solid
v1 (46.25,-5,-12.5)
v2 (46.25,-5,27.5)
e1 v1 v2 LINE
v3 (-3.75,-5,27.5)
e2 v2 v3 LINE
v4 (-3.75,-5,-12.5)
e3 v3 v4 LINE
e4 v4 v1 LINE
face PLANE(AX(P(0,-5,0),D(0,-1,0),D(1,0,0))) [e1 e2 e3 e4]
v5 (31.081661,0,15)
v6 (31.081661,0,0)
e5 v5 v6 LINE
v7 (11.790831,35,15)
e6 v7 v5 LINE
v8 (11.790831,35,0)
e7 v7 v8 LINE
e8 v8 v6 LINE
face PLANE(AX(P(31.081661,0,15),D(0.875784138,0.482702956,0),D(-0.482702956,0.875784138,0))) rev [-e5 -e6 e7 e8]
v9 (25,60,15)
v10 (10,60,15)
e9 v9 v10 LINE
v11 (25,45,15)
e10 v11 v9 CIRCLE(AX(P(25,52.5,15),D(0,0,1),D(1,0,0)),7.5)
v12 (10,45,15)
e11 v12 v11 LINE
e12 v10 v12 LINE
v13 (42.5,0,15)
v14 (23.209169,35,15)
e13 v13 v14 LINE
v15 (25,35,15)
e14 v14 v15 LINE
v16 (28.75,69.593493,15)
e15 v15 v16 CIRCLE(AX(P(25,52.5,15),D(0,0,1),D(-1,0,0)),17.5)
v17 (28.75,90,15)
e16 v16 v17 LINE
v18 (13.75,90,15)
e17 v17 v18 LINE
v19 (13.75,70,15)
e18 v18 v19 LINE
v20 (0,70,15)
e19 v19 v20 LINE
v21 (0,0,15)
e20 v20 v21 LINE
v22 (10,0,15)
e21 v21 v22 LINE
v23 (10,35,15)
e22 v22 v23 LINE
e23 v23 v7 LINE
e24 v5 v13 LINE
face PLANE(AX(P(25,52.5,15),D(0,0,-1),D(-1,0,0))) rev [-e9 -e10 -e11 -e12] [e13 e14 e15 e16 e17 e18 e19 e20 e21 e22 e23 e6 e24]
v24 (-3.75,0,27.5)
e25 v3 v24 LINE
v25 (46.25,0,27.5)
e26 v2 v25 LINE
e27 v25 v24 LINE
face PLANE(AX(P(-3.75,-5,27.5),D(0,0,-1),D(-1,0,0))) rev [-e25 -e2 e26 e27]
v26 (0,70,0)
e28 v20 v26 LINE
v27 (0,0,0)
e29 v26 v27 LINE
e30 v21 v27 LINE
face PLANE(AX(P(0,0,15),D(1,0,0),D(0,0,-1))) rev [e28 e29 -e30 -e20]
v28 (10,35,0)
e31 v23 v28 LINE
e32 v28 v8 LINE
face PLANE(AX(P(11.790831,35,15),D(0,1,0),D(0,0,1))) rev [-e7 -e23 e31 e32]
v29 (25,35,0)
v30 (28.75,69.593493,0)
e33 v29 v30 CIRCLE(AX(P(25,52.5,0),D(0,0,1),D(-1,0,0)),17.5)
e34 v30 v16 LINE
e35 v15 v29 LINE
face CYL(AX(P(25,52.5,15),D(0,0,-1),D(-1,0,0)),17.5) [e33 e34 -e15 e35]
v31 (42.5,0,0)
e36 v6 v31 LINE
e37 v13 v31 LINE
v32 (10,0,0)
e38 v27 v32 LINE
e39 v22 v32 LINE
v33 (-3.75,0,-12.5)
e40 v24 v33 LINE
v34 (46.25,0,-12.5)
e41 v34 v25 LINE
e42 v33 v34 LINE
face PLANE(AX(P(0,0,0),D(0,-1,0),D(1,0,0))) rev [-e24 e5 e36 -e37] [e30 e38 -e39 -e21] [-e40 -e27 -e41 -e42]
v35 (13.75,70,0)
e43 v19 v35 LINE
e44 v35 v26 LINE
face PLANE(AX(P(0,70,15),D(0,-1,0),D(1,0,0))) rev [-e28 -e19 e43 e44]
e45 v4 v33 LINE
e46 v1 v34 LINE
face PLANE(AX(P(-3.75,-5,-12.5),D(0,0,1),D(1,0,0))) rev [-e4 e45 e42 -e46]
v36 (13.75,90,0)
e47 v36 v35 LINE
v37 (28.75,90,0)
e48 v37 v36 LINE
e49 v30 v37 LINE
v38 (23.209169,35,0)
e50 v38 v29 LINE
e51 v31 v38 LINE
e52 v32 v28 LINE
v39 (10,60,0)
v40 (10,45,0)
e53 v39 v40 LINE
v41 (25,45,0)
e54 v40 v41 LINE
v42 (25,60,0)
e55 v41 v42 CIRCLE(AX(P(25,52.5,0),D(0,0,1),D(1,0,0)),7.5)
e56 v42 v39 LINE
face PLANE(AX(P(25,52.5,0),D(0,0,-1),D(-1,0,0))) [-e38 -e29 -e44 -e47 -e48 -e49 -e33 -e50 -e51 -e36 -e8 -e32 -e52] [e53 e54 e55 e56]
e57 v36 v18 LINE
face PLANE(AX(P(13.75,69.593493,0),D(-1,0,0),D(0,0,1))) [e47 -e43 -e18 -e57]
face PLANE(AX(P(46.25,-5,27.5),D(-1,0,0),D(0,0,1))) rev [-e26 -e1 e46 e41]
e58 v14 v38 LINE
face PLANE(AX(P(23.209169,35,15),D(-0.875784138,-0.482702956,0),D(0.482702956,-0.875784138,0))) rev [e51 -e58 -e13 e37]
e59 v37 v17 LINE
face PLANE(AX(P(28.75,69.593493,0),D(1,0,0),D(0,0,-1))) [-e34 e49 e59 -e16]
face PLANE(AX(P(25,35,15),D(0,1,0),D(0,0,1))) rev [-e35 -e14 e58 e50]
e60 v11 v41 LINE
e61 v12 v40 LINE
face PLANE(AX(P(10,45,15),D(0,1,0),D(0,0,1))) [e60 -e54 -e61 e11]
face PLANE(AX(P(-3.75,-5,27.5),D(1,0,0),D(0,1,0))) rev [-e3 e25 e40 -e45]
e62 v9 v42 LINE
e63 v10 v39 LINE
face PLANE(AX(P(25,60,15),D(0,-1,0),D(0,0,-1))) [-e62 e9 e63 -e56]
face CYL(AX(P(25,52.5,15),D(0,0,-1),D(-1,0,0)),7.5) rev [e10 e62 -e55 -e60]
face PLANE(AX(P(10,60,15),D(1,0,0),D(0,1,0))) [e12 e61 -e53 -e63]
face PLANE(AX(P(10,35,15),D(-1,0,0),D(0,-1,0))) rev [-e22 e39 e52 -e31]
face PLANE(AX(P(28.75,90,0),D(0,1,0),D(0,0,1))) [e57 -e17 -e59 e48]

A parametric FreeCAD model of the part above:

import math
import FreeCAD as App
import Part
import Sketcher

V = App.Vector

doc = App.newDocument("Part")
params = doc.addObject("Spreadsheet::Sheet", "Params")
for row, (alias, value) in enumerate([
    ("sketch1_radius", "17.5 mm"),
    ("sketch1_radius2", "7.5 mm"),
    ("sketch1_width", "10 mm"),
    ("sketch1_height", "70 mm"),
    ("pad1_length", "15 mm"),
    ("sketch2_width", "50 mm"),
    ("sketch2_height", "40 mm"),
    ("pad2_length", "5 mm"),
    ("sketch3_width", "15 mm"),
    ("pad3_length", "15 mm"),
], start=1):
    params.set(f"A{row}", alias)
    params.set(f"B{row}", "=" + value)
    params.setAlias(f"B{row}", alias)

body = doc.addObject("PartDesign::Body", "Body")

sketch1 = body.newObject("Sketcher::SketchObject", "Sketch")
sketch1.AttachmentSupport = (doc.getObject("XY_Plane"), [""])
sketch1.MapMode = "FlatFace"
sketch1.addGeometry([
    Part.LineSegment(V(0, 70, 0), V(0, 0, 0)),
    Part.LineSegment(V(0, 0, 0), V(10, 0, 0)),
    Part.LineSegment(V(10, 0, 0), V(10, 35, 0)),
    Part.LineSegment(V(10, 35, 0), V(11.8, 35, 0)),
    Part.LineSegment(V(11.8, 35, 0), V(31.1, 0, 0)),
    Part.LineSegment(V(31.1, 0, 0), V(42.5, 0, 0)),
    Part.LineSegment(V(42.5, 0, 0), V(23.2, 35, 0)),
    Part.LineSegment(V(23.2, 35, 0), V(25, 35, 0)),
    Part.ArcOfCircle(Part.Circle(V(25, 52.5, 0), V(0, 0, 1), 17.5), math.radians(-90), math.radians(90)),
    Part.LineSegment(V(25, 70, 0), V(0, 70, 0)),
    Part.LineSegment(V(10, 60, 0), V(25, 60, 0)),
    Part.ArcOfCircle(Part.Circle(V(25, 52.5, 0), V(0, 0, 1), 7.5), math.radians(-90), math.radians(90)),
    Part.LineSegment(V(25, 45, 0), V(10, 45, 0)),
    Part.LineSegment(V(10, 45, 0), V(10, 60, 0)),
], False)
sketch1.addConstraint([
    Sketcher.Constraint("Coincident", 0, 2, 1, 1),
    Sketcher.Constraint("Coincident", 1, 2, 2, 1),
    Sketcher.Constraint("Coincident", 2, 2, 3, 1),
    Sketcher.Constraint("Coincident", 3, 2, 4, 1),
    Sketcher.Constraint("Coincident", 4, 2, 5, 1),
    Sketcher.Constraint("Coincident", 5, 2, 6, 1),
    Sketcher.Constraint("Coincident", 6, 2, 7, 1),
    Sketcher.Constraint("Tangent", 7, 2, 8, 1),
    Sketcher.Constraint("Tangent", 8, 2, 9, 1),
    Sketcher.Constraint("Coincident", 9, 2, 0, 1),
    Sketcher.Constraint("Tangent", 10, 2, 11, 2),
    Sketcher.Constraint("Tangent", 11, 1, 12, 1),
    Sketcher.Constraint("Coincident", 12, 2, 13, 1),
    Sketcher.Constraint("Coincident", 13, 2, 10, 1),
    Sketcher.Constraint("Vertical", 0),
    Sketcher.Constraint("Horizontal", 1),
    Sketcher.Constraint("Vertical", 2),
    Sketcher.Constraint("Horizontal", 3),
    Sketcher.Constraint("Horizontal", 5),
    Sketcher.Constraint("Horizontal", 7),
    Sketcher.Constraint("Horizontal", 9),
    Sketcher.Constraint("Horizontal", 10),
    Sketcher.Constraint("Horizontal", 12),
    Sketcher.Constraint("Vertical", 13),
    Sketcher.Constraint("Coincident", 0, 2, -1, 1),
    Sketcher.Constraint("Coincident", 11, 3, 8, 3),
    Sketcher.Constraint("PointOnObject", 4, 2, -1),
    Sketcher.Constraint("Parallel", 4, 6),
    Sketcher.Constraint("Horizontal", 3, 2, 6, 2),
    Sketcher.Constraint("Vertical", 2, 2, 12, 2),
    Sketcher.Constraint("Equal", 3, 7),
    Sketcher.Constraint("Equal", 12, 13),
    Sketcher.Constraint("Radius", 8, 17.5),
    Sketcher.Constraint("Radius", 11, 7.5),
    Sketcher.Constraint("DistanceX", 1, 1, 1, 2, 10.0),
    Sketcher.Constraint("DistanceY", 0, 2, 0, 1, 70.0),
    Sketcher.Constraint("DistanceX", -1, 1, 5, 2, 42.5),
    Sketcher.Constraint("DistanceX", 3, 1, 3, 2, 1.790831),
])
sketch1.setExpression("Constraints[32]", "Params.sketch1_radius")
sketch1.setExpression("Constraints[33]", "Params.sketch1_radius2")
sketch1.setExpression("Constraints[34]", "Params.sketch1_width")
sketch1.setExpression("Constraints[35]", "Params.sketch1_height")
pad1 = body.newObject("PartDesign::Pad", "Pad")
pad1.Profile = sketch1
pad1.setExpression("Length", "Params.pad1_length")

sketch2 = body.newObject("Sketcher::SketchObject", "Sketch001")
sketch2.AttachmentSupport = (doc.getObject("XZ_Plane"), [""])
sketch2.MapMode = "FlatFace"
sketch2.addGeometry([
    Part.LineSegment(V(-4, 28, 0), V(-4, -12, 0)),
    Part.LineSegment(V(-4, -12, 0), V(46, -12, 0)),
    Part.LineSegment(V(46, -12, 0), V(46, 28, 0)),
    Part.LineSegment(V(46, 28, 0), V(-4, 28, 0)),
], False)
sketch2.addConstraint([
    Sketcher.Constraint("Coincident", 0, 2, 1, 1),
    Sketcher.Constraint("Coincident", 1, 2, 2, 1),
    Sketcher.Constraint("Coincident", 2, 2, 3, 1),
    Sketcher.Constraint("Coincident", 3, 2, 0, 1),
    Sketcher.Constraint("Vertical", 0),
    Sketcher.Constraint("Horizontal", 1),
    Sketcher.Constraint("Vertical", 2),
    Sketcher.Constraint("Horizontal", 3),
    Sketcher.Constraint("DistanceX", 1, 1, 1, 2, 50.0),
    Sketcher.Constraint("DistanceY", 0, 2, 0, 1, 40.0),
    Sketcher.Constraint("DistanceY", 0, 2, -1, 1, 12.5),
    Sketcher.Constraint("DistanceX", 0, 2, -1, 1, 3.75),
])
sketch2.setExpression("Constraints[8]", "Params.sketch2_width")
sketch2.setExpression("Constraints[9]", "Params.sketch2_height")
pad2 = body.newObject("PartDesign::Pad", "Pad001")
pad2.Profile = sketch2
pad2.setExpression("Length", "Params.pad2_length")

sketch3 = body.newObject("Sketcher::SketchObject", "Sketch002")
sketch3.AttachmentSupport = (doc.getObject("XY_Plane"), [""])
sketch3.MapMode = "FlatFace"
sketch3.AttachmentOffset = App.Placement(V(0, 0, 15), App.Rotation())
sketch3.addGeometry([
    Part.LineSegment(V(14, 90, 0), V(14, 70, 0)),
    Part.LineSegment(V(14, 70, 0), V(29, 70, 0)),
    Part.LineSegment(V(29, 70, 0), V(29, 90, 0)),
    Part.LineSegment(V(29, 90, 0), V(14, 90, 0)),
], False)
sketch3.addConstraint([
    Sketcher.Constraint("Coincident", 0, 2, 1, 1),
    Sketcher.Constraint("Coincident", 1, 2, 2, 1),
    Sketcher.Constraint("Coincident", 2, 2, 3, 1),
    Sketcher.Constraint("Coincident", 3, 2, 0, 1),
    Sketcher.Constraint("Vertical", 0),
    Sketcher.Constraint("Horizontal", 1),
    Sketcher.Constraint("Vertical", 2),
    Sketcher.Constraint("Horizontal", 3),
    Sketcher.Constraint("DistanceX", 1, 1, 1, 2, 15.0),
    Sketcher.Constraint("DistanceY", -1, 1, 2, 2, 90.0),
    Sketcher.Constraint("DistanceX", -1, 1, 0, 2, 13.75),
    Sketcher.Constraint("DistanceY", 0, 2, 0, 1, 20.406507),
])
sketch3.setExpression("Constraints[8]", "Params.sketch3_width")
pad3 = body.newObject("PartDesign::Pad", "Pad002")
pad3.Profile = sketch3
pad3.setExpression("Length", "Params.pad3_length")
pad3.Reversed = True

doc.recompute()
